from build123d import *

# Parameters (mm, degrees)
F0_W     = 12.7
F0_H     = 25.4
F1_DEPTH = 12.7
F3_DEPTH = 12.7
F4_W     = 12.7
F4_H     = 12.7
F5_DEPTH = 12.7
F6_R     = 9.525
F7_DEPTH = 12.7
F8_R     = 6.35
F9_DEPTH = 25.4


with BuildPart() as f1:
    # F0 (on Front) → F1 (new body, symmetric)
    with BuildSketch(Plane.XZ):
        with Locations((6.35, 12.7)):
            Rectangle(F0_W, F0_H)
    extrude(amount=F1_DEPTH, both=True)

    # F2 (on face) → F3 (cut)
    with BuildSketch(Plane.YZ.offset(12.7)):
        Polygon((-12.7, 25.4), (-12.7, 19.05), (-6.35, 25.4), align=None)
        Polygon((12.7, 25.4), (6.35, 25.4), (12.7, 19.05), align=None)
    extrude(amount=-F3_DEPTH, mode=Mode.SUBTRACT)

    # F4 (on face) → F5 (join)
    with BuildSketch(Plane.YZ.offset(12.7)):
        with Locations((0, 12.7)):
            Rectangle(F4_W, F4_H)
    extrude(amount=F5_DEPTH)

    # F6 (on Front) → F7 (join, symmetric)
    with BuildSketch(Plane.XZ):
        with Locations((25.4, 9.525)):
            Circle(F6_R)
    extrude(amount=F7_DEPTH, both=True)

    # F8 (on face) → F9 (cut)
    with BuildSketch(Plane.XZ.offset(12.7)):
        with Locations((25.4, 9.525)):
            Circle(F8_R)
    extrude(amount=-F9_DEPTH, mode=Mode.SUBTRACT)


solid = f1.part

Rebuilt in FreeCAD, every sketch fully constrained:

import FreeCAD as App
import Part
import Sketcher
Q = App.Units.Quantity

doc = App.newDocument("Part")
params = doc.addObject("Spreadsheet::Sheet", "Params")
for row, (alias, value) in enumerate([
    ("sketch1_height", "1 in"),
    ("sketch1_width", "0.5 in"),
    ("pad1_length", "1 in"),
    ("sketch2_width", "0.25 in"),
    ("pocket1_length", "0.5 in"),
    ("sketch3_width", "0.5 in"),
    ("pad2_length", "0.5 in"),
    ("sketch4_diameter", "0.75 in"),
    ("pad3_length", "1 in"),
    ("sketch5_diameter", "0.5 in"),
    ("pocket2_length", "1 in"),
], start=1):
    params.set(f"A{row}", alias)
    params.set(f"B{row}", "=" + value)
    params.setAlias(f"B{row}", alias)

body = doc.addObject("PartDesign::Body", "Body")

# Sketch on XZ plane
sketch1 = body.newObject("Sketcher::SketchObject", "Sketch")
sketch1.AttachmentSupport = (doc.getObject("XZ_Plane"), [""])
sketch1.MapMode = "FlatFace"
sketch1.addGeometry(Part.LineSegment(App.Vector(0, 25.4, 0), App.Vector(0, 0, 0)), False)
sketch1.addGeometry(Part.LineSegment(App.Vector(0, 0, 0), App.Vector(12.7, 0, 0)), False)
sketch1.addGeometry(Part.LineSegment(App.Vector(12.7, 0, 0), App.Vector(12.7, 25.4, 0)), False)
sketch1.addGeometry(Part.LineSegment(App.Vector(12.7, 25.4, 0), App.Vector(0, 25.4, 0)), False)
sketch1.addConstraint(Sketcher.Constraint("Coincident", 0, 2, 1, 1))
sketch1.addConstraint(Sketcher.Constraint("Coincident", 1, 2, 2, 1))
sketch1.addConstraint(Sketcher.Constraint("Coincident", 2, 2, 3, 1))
sketch1.addConstraint(Sketcher.Constraint("Coincident", 3, 2, 0, 1))
sketch1.addConstraint(Sketcher.Constraint("Vertical", 0))
sketch1.addConstraint(Sketcher.Constraint("Horizontal", 1))
sketch1.addConstraint(Sketcher.Constraint("Vertical", 2))
sketch1.addConstraint(Sketcher.Constraint("Horizontal", 3))
sketch1.addConstraint(Sketcher.Constraint("Coincident", 0, 2, -1, 1))
sketch1.addConstraint(Sketcher.Constraint("DistanceY", 0, 2, 0, 1, Q("1 in")))
sketch1.addConstraint(Sketcher.Constraint("DistanceX", 1, 1, 1, 2, Q("0.5 in")))
sketch1.setExpression("Constraints[9]", "Params.sketch1_height")
sketch1.setExpression("Constraints[10]", "Params.sketch1_width")
pad1 = body.newObject("PartDesign::Pad", "Pad")
pad1.Profile = sketch1
pad1.setExpression("Length", "Params.pad1_length")
pad1.Midplane = True

# Sketch on YZ plane
sketch2 = body.newObject("Sketcher::SketchObject", "Sketch001")
sketch2.AttachmentSupport = (doc.getObject("YZ_Plane"), [""])
sketch2.MapMode = "FlatFace"
sketch2.AttachmentOffset = App.Placement(App.Vector(0, 0, 0.5 * 25.4), App.Rotation())
sketch2.addGeometry(Part.LineSegment(App.Vector(-12.7, 25.4, 0), App.Vector(-12.7, 19.05, 0)), False)
sketch2.addGeometry(Part.LineSegment(App.Vector(-12.7, 19.05, 0), App.Vector(-6.35, 25.4, 0)), False)
sketch2.addGeometry(Part.LineSegment(App.Vector(-6.35, 25.4, 0), App.Vector(-12.7, 25.4, 0)), False)
sketch2.addGeometry(Part.LineSegment(App.Vector(12.7, 25.4, 0), App.Vector(6.35, 25.4, 0)), False)
sketch2.addGeometry(Part.LineSegment(App.Vector(6.35, 25.4, 0), App.Vector(12.7, 19.05, 0)), False)
sketch2.addGeometry(Part.LineSegment(App.Vector(12.7, 19.05, 0), App.Vector(12.7, 25.4, 0)), False)
sketch2.addConstraint(Sketcher.Constraint("Coincident", 0, 2, 1, 1))
sketch2.addConstraint(Sketcher.Constraint("Coincident", 1, 2, 2, 1))
sketch2.addConstraint(Sketcher.Constraint("Coincident", 2, 2, 0, 1))
sketch2.addConstraint(Sketcher.Constraint("Coincident", 3, 2, 4, 1))
sketch2.addConstraint(Sketcher.Constraint("Coincident", 4, 2, 5, 1))
sketch2.addConstraint(Sketcher.Constraint("Coincident", 5, 2, 3, 1))
sketch2.addConstraint(Sketcher.Constraint("Vertical", 0))
sketch2.addConstraint(Sketcher.Constraint("Horizontal", 2))
sketch2.addConstraint(Sketcher.Constraint("Horizontal", 3))
sketch2.addConstraint(Sketcher.Constraint("Vertical", 5))
sketch2.addConstraint(Sketcher.Constraint("Symmetric", 1, 2, 3, 2, -2))
sketch2.addConstraint(Sketcher.Constraint("Symmetric", 0, 2, 4, 2, -2))
sketch2.addConstraint(Sketcher.Constraint("Perpendicular", 1, 4))
sketch2.addConstraint(Sketcher.Constraint("DistanceY", -1, 1, 1, 2, Q("1 in")))
sketch2.addConstraint(Sketcher.Constraint("DistanceX", 0, 2, 4, 2, Q("1 in")))
sketch2.addConstraint(Sketcher.Constraint("DistanceX", 2, 2, 2, 1, Q("0.25 in")))
sketch2.setExpression("Constraints[15]", "Params.sketch2_width")
pocket1 = body.newObject("PartDesign::Pocket", "Pocket")
pocket1.Profile = sketch2
pocket1.setExpression("Length", "Params.pocket1_length")

# Sketch on YZ plane
sketch3 = body.newObject("Sketcher::SketchObject", "Sketch002")
sketch3.AttachmentSupport = (doc.getObject("YZ_Plane"), [""])
sketch3.MapMode = "FlatFace"
sketch3.AttachmentOffset = App.Placement(App.Vector(0, 0, 0.5 * 25.4), App.Rotation())
sketch3.addGeometry(Part.LineSegment(App.Vector(-6.35, 19.05, 0), App.Vector(-6.35, 6.35, 0)), False)
sketch3.addGeometry(Part.LineSegment(App.Vector(-6.35, 6.35, 0), App.Vector(6.35, 6.35, 0)), False)
sketch3.addGeometry(Part.LineSegment(App.Vector(6.35, 6.35, 0), App.Vector(6.35, 19.05, 0)), False)
sketch3.addGeometry(Part.LineSegment(App.Vector(6.35, 19.05, 0), App.Vector(-6.35, 19.05, 0)), False)
sketch3.addConstraint(Sketcher.Constraint("Coincident", 0, 2, 1, 1))
sketch3.addConstraint(Sketcher.Constraint("Coincident", 1, 2, 2, 1))
sketch3.addConstraint(Sketcher.Constraint("Coincident", 2, 2, 3, 1))
sketch3.addConstraint(Sketcher.Constraint("Coincident", 3, 2, 0, 1))
sketch3.addConstraint(Sketcher.Constraint("Vertical", 0))
sketch3.addConstraint(Sketcher.Constraint("Horizontal", 1))
sketch3.addConstraint(Sketcher.Constraint("Vertical", 2))
sketch3.addConstraint(Sketcher.Constraint("Horizontal", 3))
sketch3.addConstraint(Sketcher.Constraint("Equal", 3, 0))
sketch3.addConstraint(Sketcher.Constraint("DistanceX", 1, 1, 1, 2, Q("0.5 in")))
sketch3.addConstraint(Sketcher.Constraint("DistanceX", 0, 2, -1, 1, Q("0.25 in")))
sketch3.addConstraint(Sketcher.Constraint("DistanceY", -1, 1, 0, 2, Q("0.25 in")))
sketch3.setExpression("Constraints[9]", "Params.sketch3_width")
pad2 = body.newObject("PartDesign::Pad", "Pad001")
pad2.Profile = sketch3
pad2.setExpression("Length", "Params.pad2_length")

# Sketch on XZ plane
sketch4 = body.newObject("Sketcher::SketchObject", "Sketch003")
sketch4.AttachmentSupport = (doc.getObject("XZ_Plane"), [""])
sketch4.MapMode = "FlatFace"
sketch4.addGeometry(Part.Circle(App.Vector(25.4, 9.525, 0), App.Vector(0, 0, 1), 9.525), False)
sketch4.addConstraint(Sketcher.Constraint("Diameter", 0, Q("0.75 in")))
sketch4.addConstraint(Sketcher.Constraint("DistanceX", -1, 1, 0, 3, Q("1 in")))
sketch4.addConstraint(Sketcher.Constraint("DistanceY", -1, 1, 0, 3, Q("0.375 in")))
sketch4.setExpression("Constraints[0]", "Params.sketch4_diameter")
pad3 = body.newObject("PartDesign::Pad", "Pad002")
pad3.Profile = sketch4
pad3.setExpression("Length", "Params.pad3_length")
pad3.Midplane = True

# Sketch on XZ plane
sketch5 = body.newObject("Sketcher::SketchObject", "Sketch004")
sketch5.AttachmentSupport = (doc.getObject("XZ_Plane"), [""])
sketch5.MapMode = "FlatFace"
sketch5.AttachmentOffset = App.Placement(App.Vector(0, 0, 0.5 * 25.4), App.Rotation())
sketch5.addGeometry(Part.Circle(App.Vector(25.4, 9.525, 0), App.Vector(0, 0, 1), 6.35), False)
sketch5.addConstraint(Sketcher.Constraint("Diameter", 0, Q("0.5 in")))
sketch5.addConstraint(Sketcher.Constraint("DistanceX", -1, 1, 0, 3, Q("1 in")))
sketch5.addConstraint(Sketcher.Constraint("DistanceY", -1, 1, 0, 3, Q("0.375 in")))
sketch5.setExpression("Constraints[0]", "Params.sketch5_diameter")
pocket2 = body.newObject("PartDesign::Pocket", "Pocket001")
pocket2.Profile = sketch5
pocket2.setExpression("Length", "Params.pocket2_length")

doc.recompute()
